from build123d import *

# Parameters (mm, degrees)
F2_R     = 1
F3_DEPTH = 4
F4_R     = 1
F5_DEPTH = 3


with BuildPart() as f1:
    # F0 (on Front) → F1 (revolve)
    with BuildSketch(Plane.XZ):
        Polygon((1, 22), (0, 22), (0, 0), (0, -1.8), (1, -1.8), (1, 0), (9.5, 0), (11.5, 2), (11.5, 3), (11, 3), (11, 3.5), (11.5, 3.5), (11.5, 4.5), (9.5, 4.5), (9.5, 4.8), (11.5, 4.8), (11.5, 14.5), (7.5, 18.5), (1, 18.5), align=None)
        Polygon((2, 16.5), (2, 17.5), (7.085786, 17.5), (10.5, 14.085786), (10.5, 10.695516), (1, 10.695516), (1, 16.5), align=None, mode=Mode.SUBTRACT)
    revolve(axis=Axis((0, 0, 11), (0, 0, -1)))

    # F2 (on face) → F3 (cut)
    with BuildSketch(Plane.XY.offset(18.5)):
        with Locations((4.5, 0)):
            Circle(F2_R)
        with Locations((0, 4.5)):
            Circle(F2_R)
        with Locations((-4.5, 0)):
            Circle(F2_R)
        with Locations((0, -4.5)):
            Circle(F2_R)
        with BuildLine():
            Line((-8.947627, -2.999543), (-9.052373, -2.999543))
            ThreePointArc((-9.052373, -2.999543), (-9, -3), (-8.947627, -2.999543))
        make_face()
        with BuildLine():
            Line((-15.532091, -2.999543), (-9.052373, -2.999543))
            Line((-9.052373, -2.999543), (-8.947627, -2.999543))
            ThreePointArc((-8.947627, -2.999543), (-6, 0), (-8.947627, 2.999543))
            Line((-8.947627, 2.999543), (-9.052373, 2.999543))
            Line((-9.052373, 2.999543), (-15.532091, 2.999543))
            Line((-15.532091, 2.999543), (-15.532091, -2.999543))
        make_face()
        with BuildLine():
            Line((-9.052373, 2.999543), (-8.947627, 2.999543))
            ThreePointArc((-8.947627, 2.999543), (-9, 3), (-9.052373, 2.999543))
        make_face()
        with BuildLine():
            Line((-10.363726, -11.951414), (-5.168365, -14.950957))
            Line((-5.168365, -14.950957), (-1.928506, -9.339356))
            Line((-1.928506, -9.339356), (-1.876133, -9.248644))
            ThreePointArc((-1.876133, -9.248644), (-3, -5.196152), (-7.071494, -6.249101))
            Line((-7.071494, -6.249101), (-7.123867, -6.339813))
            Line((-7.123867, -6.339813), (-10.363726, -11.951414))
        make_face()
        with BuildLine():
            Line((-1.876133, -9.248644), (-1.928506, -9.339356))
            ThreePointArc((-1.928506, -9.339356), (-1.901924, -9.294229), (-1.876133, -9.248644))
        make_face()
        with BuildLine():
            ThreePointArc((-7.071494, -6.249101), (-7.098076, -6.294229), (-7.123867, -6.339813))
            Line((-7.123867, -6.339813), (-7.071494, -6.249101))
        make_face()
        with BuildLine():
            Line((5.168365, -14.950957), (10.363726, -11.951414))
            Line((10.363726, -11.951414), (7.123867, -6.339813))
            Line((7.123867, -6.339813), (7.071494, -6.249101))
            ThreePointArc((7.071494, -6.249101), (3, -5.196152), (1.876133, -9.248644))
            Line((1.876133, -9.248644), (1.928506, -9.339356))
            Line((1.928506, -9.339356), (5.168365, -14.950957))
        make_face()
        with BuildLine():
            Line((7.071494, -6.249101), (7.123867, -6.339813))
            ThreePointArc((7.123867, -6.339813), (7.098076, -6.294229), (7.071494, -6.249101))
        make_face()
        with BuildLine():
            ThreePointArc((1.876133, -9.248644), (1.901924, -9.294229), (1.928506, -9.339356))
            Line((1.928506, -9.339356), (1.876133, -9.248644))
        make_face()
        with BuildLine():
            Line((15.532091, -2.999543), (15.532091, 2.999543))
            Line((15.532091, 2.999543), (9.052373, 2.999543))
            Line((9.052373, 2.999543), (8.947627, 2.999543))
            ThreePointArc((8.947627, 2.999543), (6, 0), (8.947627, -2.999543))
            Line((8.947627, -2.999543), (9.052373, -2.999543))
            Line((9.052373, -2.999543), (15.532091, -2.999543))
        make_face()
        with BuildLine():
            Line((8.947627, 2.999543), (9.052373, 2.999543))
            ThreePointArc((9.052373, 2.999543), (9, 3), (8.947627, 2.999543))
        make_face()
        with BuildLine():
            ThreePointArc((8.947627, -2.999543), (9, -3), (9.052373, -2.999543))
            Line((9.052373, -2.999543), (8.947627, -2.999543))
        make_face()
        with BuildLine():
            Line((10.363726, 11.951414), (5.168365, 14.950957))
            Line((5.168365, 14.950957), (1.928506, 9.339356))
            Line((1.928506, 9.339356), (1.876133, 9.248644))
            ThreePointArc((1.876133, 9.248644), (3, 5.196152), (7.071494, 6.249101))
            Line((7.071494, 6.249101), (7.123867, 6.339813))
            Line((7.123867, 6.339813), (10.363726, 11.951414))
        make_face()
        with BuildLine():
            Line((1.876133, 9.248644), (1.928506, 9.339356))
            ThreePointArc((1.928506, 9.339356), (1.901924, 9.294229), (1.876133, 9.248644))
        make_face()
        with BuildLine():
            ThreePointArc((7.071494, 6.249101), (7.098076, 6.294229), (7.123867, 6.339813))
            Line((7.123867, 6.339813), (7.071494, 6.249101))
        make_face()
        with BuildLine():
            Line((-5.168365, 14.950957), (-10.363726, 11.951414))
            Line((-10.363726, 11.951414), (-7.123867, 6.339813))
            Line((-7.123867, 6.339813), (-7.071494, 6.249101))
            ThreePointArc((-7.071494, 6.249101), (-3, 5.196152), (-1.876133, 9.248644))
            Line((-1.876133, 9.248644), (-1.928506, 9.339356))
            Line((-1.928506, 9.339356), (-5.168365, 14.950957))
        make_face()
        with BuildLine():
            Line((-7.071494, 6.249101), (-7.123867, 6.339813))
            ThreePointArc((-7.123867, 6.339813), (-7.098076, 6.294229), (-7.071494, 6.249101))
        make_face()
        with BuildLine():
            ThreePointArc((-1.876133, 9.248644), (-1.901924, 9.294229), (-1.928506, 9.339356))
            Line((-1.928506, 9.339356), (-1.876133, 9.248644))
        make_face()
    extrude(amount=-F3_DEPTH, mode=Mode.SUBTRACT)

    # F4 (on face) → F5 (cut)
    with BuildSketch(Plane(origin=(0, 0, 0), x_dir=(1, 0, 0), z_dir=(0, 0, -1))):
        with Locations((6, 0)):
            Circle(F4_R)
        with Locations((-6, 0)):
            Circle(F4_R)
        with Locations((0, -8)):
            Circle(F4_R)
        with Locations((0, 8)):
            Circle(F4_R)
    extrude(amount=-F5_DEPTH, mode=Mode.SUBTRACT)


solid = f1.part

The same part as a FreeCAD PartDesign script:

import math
import FreeCAD as App
import Part
import Sketcher
from FreeCAD import Vector
Q = App.Units.Quantity

doc = App.newDocument("Part")
body = doc.addObject("PartDesign::Body", "Body")

# Sketch on XZ plane
sketch1 = body.newObject("Sketcher::SketchObject", "Sketch")
sketch1.AttachmentSupport = (doc.getObject("XZ_Plane"), [""])
sketch1.MapMode = "FlatFace"
sketch1.addGeometry([
    Part.LineSegment(Vector(1, 22, 0), Vector(0, 22, 0)),  # 0
    Part.LineSegment(Vector(0, 22, 0), Vector(0, -1.8, 0)),  # 1
    Part.LineSegment(Vector(0, -1.8, 0), Vector(1, -1.8, 0)),  # 2
    Part.LineSegment(Vector(1, -1.8, 0), Vector(1, 0, 0)),  # 3
    Part.LineSegment(Vector(1, 0, 0), Vector(9.5, 0, 0)),  # 4
    Part.LineSegment(Vector(9.5, 0, 0), Vector(11.5, 2, 0)),  # 5
    Part.LineSegment(Vector(11.5, 2, 0), Vector(11.5, 3, 0)),  # 6
    Part.LineSegment(Vector(11.5, 3, 0), Vector(11, 3, 0)),  # 7
    Part.LineSegment(Vector(11, 3, 0), Vector(11, 3.5, 0)),  # 8
    Part.LineSegment(Vector(11, 3.5, 0), Vector(11.5, 3.5, 0)),  # 9
    Part.LineSegment(Vector(11.5, 3.5, 0), Vector(11.5, 4.5, 0)),  # 10
    Part.LineSegment(Vector(11.5, 4.5, 0), Vector(9.5, 4.5, 0)),  # 11
    Part.LineSegment(Vector(9.5, 4.5, 0), Vector(9.5, 4.8, 0)),  # 12
    Part.LineSegment(Vector(9.5, 4.8, 0), Vector(11.5, 4.8, 0)),  # 13
    Part.LineSegment(Vector(11.5, 4.8, 0), Vector(11.5, 14.5, 0)),  # 14
    Part.LineSegment(Vector(11.5, 14.5, 0), Vector(7.5, 18.5, 0)),  # 15
    Part.LineSegment(Vector(7.5, 18.5, 0), Vector(1, 18.5, 0)),  # 16
    Part.LineSegment(Vector(1, 18.5, 0), Vector(1, 22, 0)),  # 17
    Part.LineSegment(Vector(1, 16.5, 0), Vector(2, 16.5, 0)),  # 18
    Part.LineSegment(Vector(2, 16.5, 0), Vector(2, 17.5, 0)),  # 19
    Part.LineSegment(Vector(2, 17.5, 0), Vector(7.085786, 17.5, 0)),  # 20
    Part.LineSegment(Vector(7.085786, 17.5, 0), Vector(10.5, 14.085786, 0)),  # 21
    Part.LineSegment(Vector(10.5, 14.085786, 0), Vector(10.5, 10.695516, 0)),  # 22
    Part.LineSegment(Vector(10.5, 10.695516, 0), Vector(1, 10.695516, 0)),  # 23
    Part.LineSegment(Vector(1, 10.695516, 0), Vector(1, 16.5, 0)),  # 24
], False)
sketch1.addConstraint([
    Sketcher.Constraint("Coincident", 0, 2, 1, 1),
    Sketcher.Constraint("Coincident", 1, 2, 2, 1),
    Sketcher.Constraint("Coincident", 2, 2, 3, 1),
    Sketcher.Constraint("Coincident", 3, 2, 4, 1),
    Sketcher.Constraint("Coincident", 4, 2, 5, 1),
    Sketcher.Constraint("Coincident", 5, 2, 6, 1),
    Sketcher.Constraint("Coincident", 6, 2, 7, 1),
    Sketcher.Constraint("Coincident", 7, 2, 8, 1),
    Sketcher.Constraint("Coincident", 8, 2, 9, 1),
    Sketcher.Constraint("Coincident", 9, 2, 10, 1),
    Sketcher.Constraint("Coincident", 10, 2, 11, 1),
    Sketcher.Constraint("Coincident", 11, 2, 12, 1),
    Sketcher.Constraint("Coincident", 12, 2, 13, 1),
    Sketcher.Constraint("Coincident", 13, 2, 14, 1),
    Sketcher.Constraint("Coincident", 14, 2, 15, 1),
    Sketcher.Constraint("Coincident", 15, 2, 16, 1),
    Sketcher.Constraint("Coincident", 16, 2, 17, 1),
    Sketcher.Constraint("Coincident", 17, 2, 0, 1),
    Sketcher.Constraint("Coincident", 18, 2, 19, 1),
    Sketcher.Constraint("Coincident", 19, 2, 20, 1),
    Sketcher.Constraint("Coincident", 20, 2, 21, 1),
    Sketcher.Constraint("Coincident", 21, 2, 22, 1),
    Sketcher.Constraint("Coincident", 22, 2, 23, 1),
    Sketcher.Constraint("Coincident", 23, 2, 24, 1),
    Sketcher.Constraint("Coincident", 24, 2, 18, 1),
    Sketcher.Constraint("Horizontal", 0),
    Sketcher.Constraint("Vertical", 1),
    Sketcher.Constraint("Horizontal", 2),
    Sketcher.Constraint("Vertical", 3),
    Sketcher.Constraint("Horizontal", 4),
    Sketcher.Constraint("Vertical", 6),
    Sketcher.Constraint("Horizontal", 7),
    Sketcher.Constraint("Vertical", 8),
    Sketcher.Constraint("Horizontal", 9),
    Sketcher.Constraint("Vertical", 10),
    Sketcher.Constraint("Horizontal", 11),
    Sketcher.Constraint("Vertical", 12),
    Sketcher.Constraint("Horizontal", 13),
    Sketcher.Constraint("Vertical", 14),
    Sketcher.Constraint("Horizontal", 16),
    Sketcher.Constraint("Vertical", 17),
    Sketcher.Constraint("Horizontal", 18),
    Sketcher.Constraint("Vertical", 19),
    Sketcher.Constraint("Horizontal", 20),
    Sketcher.Constraint("Vertical", 22),
    Sketcher.Constraint("Horizontal", 23),
    Sketcher.Constraint("Vertical", 24),
    Sketcher.Constraint("PointOnObject", 0, 2, -2),
    Sketcher.Constraint("PointOnObject", 3, 2, -1),
    Sketcher.Constraint("Perpendicular", 5, 15),
    Sketcher.Constraint("Parallel", 15, 21),
    Sketcher.Constraint("Vertical", 6, 2, 9, 2),
    Sketcher.Constraint("Vertical", 4, 2, 11, 2),
    Sketcher.Constraint("Vertical", 10, 2, 13, 2),
    Sketcher.Constraint("Vertical", 3, 2, 16, 2),
    Sketcher.Constraint("Vertical", 17, 2, 23, 2),
    Sketcher.Constraint("Equal", 2, 18),
    Sketcher.Constraint("Equal", 18, 6),
    Sketcher.Constraint("Equal", 9, 8),
    Sketcher.Constraint("Equal", 6, 10),
    Sketcher.Constraint("Equal", 10, 19),
    Sketcher.Constraint("DistanceX", 0, 2, 0, 1, 1.0),
    Sketcher.Constraint("DistanceX", 11, 2, 11, 1, 2.0),
    Sketcher.Constraint("Angle", 5, Q("45 deg")),
    Sketcher.Constraint("DistanceX", 4, 1, 4, 2, 8.5),
    Sketcher.Constraint("DistanceX", 7, 2, 7, 1, 0.5),
    Sketcher.Constraint("DistanceX", 16, 2, 16, 1, 6.5),
    Sketcher.Constraint("DistanceX", 23, 2, 23, 1, 9.5),
    Sketcher.Constraint("DistanceY", 1, 2, 1, 1, 23.8),
    Sketcher.Constraint("DistanceY", 3, 1, 3, 2, 1.8),
    Sketcher.Constraint("DistanceY", 12, 1, 12, 2, 0.3),
    Sketcher.Constraint("DistanceY", 14, 1, 14, 2, 9.7),
    Sketcher.Constraint("DistanceY", 18, 2, 16, 2, 2.0),
    Sketcher.Constraint("DistanceY", 22, 2, 22, 1, 3.39027),
    Sketcher.Constraint("DistanceX", 20, 1, 20, 2, 5.085786),
])
revolution = body.newObject("PartDesign::Revolution", "Revolution")
revolution.Profile = sketch1
revolution.ReferenceAxis = (sketch1, ["V_Axis"])
revolution.Angle = 360

# Sketch on XY plane
sketch2 = body.newObject("Sketcher::SketchObject", "Sketch001")
sketch2.AttachmentSupport = (doc.getObject("XY_Plane"), [""])
sketch2.MapMode = "FlatFace"
sketch2.AttachmentOffset = App.Placement(Vector(0, 0, 18.5), App.Rotation())
sketch2.addGeometry([
    Part.Circle(Vector(4.5, 0, 0), Vector(0, 0, 1), 1),  # 0
    Part.Circle(Vector(0, 4.5, 0), Vector(0, 0, 1), 1),  # 1
    Part.Circle(Vector(-4.5, 0, 0), Vector(0, 0, 1), 1),  # 2
    Part.Circle(Vector(0, -4.5, 0), Vector(0, 0, 1), 1),  # 3
    Part.ArcOfCircle(Part.Circle(Vector(-9, 0.001247, 0), Vector(0, 0, 1), 3.001247), math.radians(-90.999886), math.radians(-89.000114)),  # 4
    Part.ArcOfCircle(Part.Circle(Vector(-9, 0, 0), Vector(0, 0, 1), 3), math.radians(-88.999695), math.radians(88.999695)),  # 5
    Part.ArcOfCircle(Part.Circle(Vector(-9, -0.001247, 0), Vector(0, 0, 1), 3.001247), math.radians(89.000114), math.radians(90.999886)),  # 6
    Part.LineSegment(Vector(-9.052373, 2.999543, 0), Vector(-15.532091, 2.999543, 0)),  # 7
    Part.LineSegment(Vector(-15.532091, 2.999543, 0), Vector(-15.532091, -2.999543, 0)),  # 8
    Part.LineSegment(Vector(-15.532091, -2.999543, 0), Vector(-9.052373, -2.999543, 0)),  # 9
    Part.LineSegment(Vector(-10.363726, -11.951414, 0), Vector(-5.168365, -14.950957, 0)),  # 10
    Part.LineSegment(Vector(-5.168365, -14.950957, 0), Vector(-1.928506, -9.339356, 0)),  # 11
    Part.ArcOfCircle(Part.Circle(Vector(-4.500971, -7.793656, 0), Vector(0, 0, 1), 3.001127), math.radians(-31.000111), math.radians(-29.000271)),  # 12
    Part.ArcOfCircle(Part.Circle(Vector(-4.5, -7.794229, 0), Vector(0, 0, 1), 3), math.radians(-28.999704), math.radians(148.999705)),  # 13
    Part.ArcOfCircle(Part.Circle(Vector(-4.496182, -7.796444, 0), Vector(0, 0, 1), 3.004414), math.radians(149.000983), math.radians(150.998635)),  # 14
    Part.LineSegment(Vector(-7.123867, -6.339813, 0), Vector(-10.363726, -11.951414, 0)),  # 15
    Part.LineSegment(Vector(5.168365, -14.950957, 0), Vector(10.363726, -11.951414, 0)),  # 16
    Part.LineSegment(Vector(10.363726, -11.951414, 0), Vector(7.123867, -6.339813, 0)),  # 17
    Part.ArcOfCircle(Part.Circle(Vector(4.496182, -7.796444, 0), Vector(0, 0, 1), 3.004414), math.radians(29.001365), math.radians(30.999017)),  # 18
    Part.ArcOfCircle(Part.Circle(Vector(4.5, -7.794229, 0), Vector(0, 0, 1), 3), math.radians(31.000295), math.radians(208.999704)),  # 19
    Part.ArcOfCircle(Part.Circle(Vector(4.500971, -7.793656, 0), Vector(0, 0, 1), 3.001127), math.radians(-150.999729), math.radians(-148.999889)),  # 20
    Part.LineSegment(Vector(1.928506, -9.339356, 0), Vector(5.168365, -14.950957, 0)),  # 21
    Part.LineSegment(Vector(15.532091, -2.999543, 0), Vector(15.532091, 2.999543, 0)),  # 22
    Part.LineSegment(Vector(15.532091, 2.999543, 0), Vector(9.052373, 2.999543, 0)),  # 23
    Part.ArcOfCircle(Part.Circle(Vector(9, -0.001247, 0), Vector(0, 0, 1), 3.001247), math.radians(89.000114), math.radians(90.999886)),  # 24
    Part.ArcOfCircle(Part.Circle(Vector(9, 0, 0), Vector(0, 0, 1), 3), math.radians(91.000305), math.radians(268.999695)),  # 25
    Part.ArcOfCircle(Part.Circle(Vector(9, 0.001247, 0), Vector(0, 0, 1), 3.001247), math.radians(-90.999886), math.radians(-89.000114)),  # 26
    Part.LineSegment(Vector(9.052373, -2.999543, 0), Vector(15.532091, -2.999543, 0)),  # 27
    Part.LineSegment(Vector(10.363726, 11.951414, 0), Vector(5.168365, 14.950957, 0)),  # 28
    Part.LineSegment(Vector(5.168365, 14.950957, 0), Vector(1.928506, 9.339356, 0)),  # 29
    Part.ArcOfCircle(Part.Circle(Vector(4.500971, 7.793656, 0), Vector(0, 0, 1), 3.001127), math.radians(148.999889), math.radians(150.999729)),  # 30
    Part.ArcOfCircle(Part.Circle(Vector(4.5, 7.794229, 0), Vector(0, 0, 1), 3), math.radians(151.000296), math.radians(328.999705)),  # 31
    Part.ArcOfCircle(Part.Circle(Vector(4.496182, 7.796444, 0), Vector(0, 0, 1), 3.004414), math.radians(-30.999017), math.radians(-29.001365)),  # 32
    Part.LineSegment(Vector(7.123867, 6.339813, 0), Vector(10.363726, 11.951414, 0)),  # 33
    Part.LineSegment(Vector(-5.168365, 14.950957, 0), Vector(-10.363726, 11.951414, 0)),  # 34
    Part.LineSegment(Vector(-10.363726, 11.951414, 0), Vector(-7.123867, 6.339813, 0)),  # 35
    Part.ArcOfCircle(Part.Circle(Vector(-4.496182, 7.796444, 0), Vector(0, 0, 1), 3.004414), math.radians(-150.998635), math.radians(-149.000983)),  # 36
    Part.ArcOfCircle(Part.Circle(Vector(-4.5, 7.794229, 0), Vector(0, 0, 1), 3), math.radians(-148.999705), math.radians(28.999704)),  # 37
    Part.ArcOfCircle(Part.Circle(Vector(-4.500971, 7.793656, 0), Vector(0, 0, 1), 3.001127), math.radians(29.000271), math.radians(31.000111)),  # 38
    Part.LineSegment(Vector(-1.928506, 9.339356, 0), Vector(-5.168365, 14.950957, 0)),  # 39
], False)
sketch2.addConstraint([
    Sketcher.Constraint("Coincident", 4, 2, 5, 1),
    Sketcher.Constraint("Coincident", 5, 2, 6, 1),
    Sketcher.Constraint("Coincident", 6, 2, 7, 1),
    Sketcher.Constraint("Coincident", 7, 2, 8, 1),
    Sketcher.Constraint("Coincident", 8, 2, 9, 1),
    Sketcher.Constraint("Coincident", 9, 2, 4, 1),
    Sketcher.Constraint("Coincident", 10, 2, 11, 1),
    Sketcher.Constraint("Coincident", 11, 2, 12, 1),
    Sketcher.Constraint("Coincident", 12, 2, 13, 1),
    Sketcher.Constraint("Coincident", 13, 2, 14, 1),
    Sketcher.Constraint("Coincident", 14, 2, 15, 1),
    Sketcher.Constraint("Coincident", 15, 2, 10, 1),
    Sketcher.Constraint("Coincident", 16, 2, 17, 1),
    Sketcher.Constraint("Coincident", 17, 2, 18, 1),
    Sketcher.Constraint("Coincident", 18, 2, 19, 1),
    Sketcher.Constraint("Coincident", 19, 2, 20, 1),
    Sketcher.Constraint("Coincident", 20, 2, 21, 1),
    Sketcher.Constraint("Coincident", 21, 2, 16, 1),
    Sketcher.Constraint("Coincident", 22, 2, 23, 1),
    Sketcher.Constraint("Coincident", 23, 2, 24, 1),
    Sketcher.Constraint("Coincident", 24, 2, 25, 1),
    Sketcher.Constraint("Coincident", 25, 2, 26, 1),
    Sketcher.Constraint("Coincident", 26, 2, 27, 1),
    Sketcher.Constraint("Coincident", 27, 2, 22, 1),
    Sketcher.Constraint("Coincident", 28, 2, 29, 1),
    Sketcher.Constraint("Coincident", 29, 2, 30, 1),
    Sketcher.Constraint("Coincident", 30, 2, 31, 1),
    Sketcher.Constraint("Coincident", 31, 2, 32, 1),
    Sketcher.Constraint("Coincident", 32, 2, 33, 1),
    Sketcher.Constraint("Coincident", 33, 2, 28, 1),
    Sketcher.Constraint("Coincident", 34, 2, 35, 1),
    Sketcher.Constraint("Coincident", 35, 2, 36, 1),
    Sketcher.Constraint("Coincident", 36, 2, 37, 1),
    Sketcher.Constraint("Coincident", 37, 2, 38, 1),
    Sketcher.Constraint("Coincident", 38, 2, 39, 1),
    Sketcher.Constraint("Coincident", 39, 2, 34, 1),
    Sketcher.Constraint("Horizontal", 7),
    Sketcher.Constraint("Vertical", 8),
    Sketcher.Constraint("Horizontal", 9),
    Sketcher.Constraint("Vertical", 22),
    Sketcher.Constraint("Horizontal", 23),
    Sketcher.Constraint("Horizontal", 27),
    Sketcher.Constraint("PointOnObject", 0, 3, -1),
    Sketcher.Constraint("PointOnObject", 1, 3, -2),
    Sketcher.Constraint("PointOnObject", 2, 3, -1),
    Sketcher.Constraint("PointOnObject", 3, 3, -2),
    Sketcher.Constraint("PointOnObject", 5, 3, -1),
    Sketcher.Constraint("PointOnObject", 25, 3, -1),
    Sketcher.Constraint("Diameter", 0, 2.0),
    Sketcher.Constraint("Diameter", 1, 2.0),
    Sketcher.Constraint("Diameter", 2, 2.0),
    Sketcher.Constraint("Diameter", 3, 2.0),
    Sketcher.Constraint("Radius", 5, 3.0),
    Sketcher.Constraint("Radius", 13, 3.0),
    Sketcher.Constraint("Radius", 19, 3.0),
    Sketcher.Constraint("Radius", 25, 3.0),
    Sketcher.Constraint("Radius", 31, 3.0),
    Sketcher.Constraint("Radius", 37, 3.0),
    Sketcher.Constraint("DistanceX", 4, 3, -1, 1, 9.0),
    Sketcher.Constraint("DistanceX", 5, 3, -1, 1, 9.0),
    Sketcher.Constraint("DistanceX", 6, 3, -1, 1, 9.0),
    Sketcher.Constraint("DistanceX", -1, 1, 24, 3, 9.0),
    Sketcher.Constraint("DistanceX", -1, 1, 25, 3, 9.0),
    Sketcher.Constraint("DistanceX", -1, 1, 26, 3, 9.0),
    Sketcher.Constraint("DistanceX", 2, 3, 0, 3, 9.0),
    Sketcher.Constraint("DistanceY", 3, 3, 1, 3, 9.0),
    Sketcher.Constraint("DistanceX", 13, 3, 19, 3, 9.0),
    Sketcher.Constraint("DistanceX", -1, 1, 0, 3, 4.5),
    Sketcher.Constraint("DistanceY", -1, 1, 1, 3, 4.5),
    Sketcher.Constraint("DistanceX", 13, 3, -1, 1, 4.5),
    Sketcher.Constraint("DistanceX", -1, 1, 31, 3, 4.5),
    Sketcher.Constraint("DistanceX", 37, 3, -1, 1, 4.5),
    Sketcher.Constraint("Radius", 4, 3.001247),
    Sketcher.Constraint("Radius", 6, 3.001247),
    Sketcher.Constraint("Radius", 12, 3.001127),
    Sketcher.Constraint("Radius", 14, 3.004414),
    Sketcher.Constraint("Radius", 18, 3.004414),
    Sketcher.Constraint("Radius", 20, 3.001127),
    Sketcher.Constraint("Radius", 24, 3.001247),
    Sketcher.Constraint("Radius", 26, 3.001247),
    Sketcher.Constraint("Radius", 30, 3.001127),
    Sketcher.Constraint("Radius", 32, 3.004414),
    Sketcher.Constraint("Radius", 36, 3.004414),
    Sketcher.Constraint("Radius", 38, 3.001127),
    Sketcher.Constraint("DistanceY", 13, 2, -1, 1, 6.249101),
    Sketcher.Constraint("DistanceY", 18, 2, -1, 1, 6.249101),
    Sketcher.Constraint("DistanceY", -1, 1, 31, 2, 6.249101),
    Sketcher.Constraint("DistanceY", -1, 1, 36, 2, 6.249101),
    Sketcher.Constraint("DistanceY", 10, 2, 12, 3, 7.157301),
    Sketcher.Constraint("DistanceY", 11, 2, 12, 3, 1.5457),
    Sketcher.Constraint("DistanceY", 12, 2, 14, 3, 1.4522),
    Sketcher.Constraint("DistanceY", 15, 2, 14, 2, 5.611601),
    Sketcher.Constraint("DistanceY", 16, 2, 17, 2, 5.611601),
    Sketcher.Constraint("DistanceY", 19, 2, 18, 3, 1.4522),
    Sketcher.Constraint("DistanceY", 20, 2, 20, 3, 1.5457),
    Sketcher.Constraint("DistanceY", 21, 2, 20, 2, 5.611601),
    Sketcher.Constraint("DistanceY", 30, 3, 28, 2, 7.157301),
    Sketcher.Constraint("DistanceY", 30, 3, 29, 2, 1.5457),
    Sketcher.Constraint("DistanceY", 32, 3, 30, 2, 1.4522),
    Sketcher.Constraint("DistanceY", 32, 2, 33, 2, 5.611601),
    Sketcher.Constraint("DistanceX", 34, 2, 5, 2, 1.416099),
    Sketcher.Constraint("DistanceY", 36, 3, 37, 2, 1.4522),
    Sketcher.Constraint("DistanceY", 38, 3, 38, 2, 1.5457),
    Sketcher.Constraint("DistanceY", 38, 2, 39, 2, 5.611601),
    Sketcher.Constraint("Distance", 11, 6.479719),
    Sketcher.Constraint("Distance", 15, 6.479719),
    Sketcher.Constraint("Distance", 17, 6.479719),
    Sketcher.Constraint("Distance", 21, 6.479719),
    Sketcher.Constraint("Distance", 29, 6.479719),
    Sketcher.Constraint("Distance", 33, 6.479719),
    Sketcher.Constraint("Distance", 35, 6.479719),
    Sketcher.Constraint("Distance", 39, 6.479719),
    Sketcher.Constraint("DistanceX", 7, 2, 7, 1, 6.479718),
    Sketcher.Constraint("DistanceX", 9, 1, 9, 2, 6.479718),
    Sketcher.Constraint("DistanceX", 23, 2, 23, 1, 6.479718),
    Sketcher.Constraint("DistanceX", 27, 1, 27, 2, 6.479718),
    Sketcher.Constraint("DistanceY", 8, 2, 8, 1, 5.999086),
    Sketcher.Constraint("DistanceY", 22, 1, 22, 2, 5.999086),
    Sketcher.Constraint("DistanceX", 12, 3, -1, 1, 4.500971),
    Sketcher.Constraint("DistanceY", 13, 3, -1, 1, 7.794229),
    Sketcher.Constraint("DistanceY", 19, 3, -1, 1, 7.794229),
    Sketcher.Constraint("DistanceX", -1, 1, 20, 3, 4.500971),
    Sketcher.Constraint("DistanceX", -1, 1, 30, 3, 4.500971),
    Sketcher.Constraint("DistanceY", -1, 1, 31, 3, 7.794229),
    Sketcher.Constraint("DistanceY", -1, 1, 37, 3, 7.794229),
    Sketcher.Constraint("DistanceX", 38, 3, -1, 1, 4.500971),
    Sketcher.Constraint("DistanceX", 12, 3, 14, 3, 0.004788),
    Sketcher.Constraint("DistanceX", 18, 3, 20, 3, 0.004788),
    Sketcher.Constraint("DistanceX", 32, 3, 30, 3, 0.004788),
    Sketcher.Constraint("DistanceX", 38, 3, 36, 3, 0.004788),
    Sketcher.Constraint("DistanceY", 4, 2, 4, 3, 3.00079),
    Sketcher.Constraint("DistanceY", 6, 3, 5, 2, 3.00079),
    Sketcher.Constraint("DistanceY", 14, 2, 13, 2, 0.090712),
    Sketcher.Constraint("DistanceY", 16, 2, 18, 3, 4.15497),
    Sketcher.Constraint("DistanceY", 24, 3, 24, 2, 3.00079),
    Sketcher.Constraint("DistanceY", 25, 2, 26, 3, 3.00079),
    Sketcher.Constraint("DistanceY", 31, 2, 32, 2, 0.090712),
    Sketcher.Constraint("DistanceY", 36, 3, 34, 2, 4.15497),
])
pocket1 = body.newObject("PartDesign::Pocket", "Pocket")
pocket1.Profile = sketch2
pocket1.Length = 4

# Sketch on XY plane
sketch3 = body.newObject("Sketcher::SketchObject", "Sketch002")
sketch3.AttachmentSupport = (doc.getObject("XY_Plane"), [""])
sketch3.MapMode = "FlatFace"
sketch3.addGeometry([
    Part.Circle(Vector(6, 0, 0), Vector(0, 0, 1), 1),
    Part.Circle(Vector(-6, 0, 0), Vector(0, 0, 1), 1),
    Part.Circle(Vector(0, 8, 0), Vector(0, 0, 1), 1),
    Part.Circle(Vector(0, -8, 0), Vector(0, 0, 1), 1),
], False)
sketch3.addConstraint([
    Sketcher.Constraint("Equal", 0, 1),
    Sketcher.Constraint("Equal", 1, 2),
    Sketcher.Constraint("Equal", 2, 3),
    Sketcher.Constraint("Symmetric", 0, 3, 1, 3, -1, 1),
    Sketcher.Constraint("Symmetric", 2, 3, 3, 3, -1, 1),
    Sketcher.Constraint("PointOnObject", 0, 3, -1),
    Sketcher.Constraint("PointOnObject", 2, 3, -2),
    Sketcher.Constraint("Diameter", 0, 2.0),
    Sketcher.Constraint("DistanceX", -1, 1, 0, 3, 6.0),
    Sketcher.Constraint("DistanceY", -1, 1, 2, 3, 8.0),
])
pocket2 = body.newObject("PartDesign::Pocket", "Pocket001")
pocket2.Profile = sketch3
pocket2.Length = 3
pocket2.Reversed = True

doc.recompute()
